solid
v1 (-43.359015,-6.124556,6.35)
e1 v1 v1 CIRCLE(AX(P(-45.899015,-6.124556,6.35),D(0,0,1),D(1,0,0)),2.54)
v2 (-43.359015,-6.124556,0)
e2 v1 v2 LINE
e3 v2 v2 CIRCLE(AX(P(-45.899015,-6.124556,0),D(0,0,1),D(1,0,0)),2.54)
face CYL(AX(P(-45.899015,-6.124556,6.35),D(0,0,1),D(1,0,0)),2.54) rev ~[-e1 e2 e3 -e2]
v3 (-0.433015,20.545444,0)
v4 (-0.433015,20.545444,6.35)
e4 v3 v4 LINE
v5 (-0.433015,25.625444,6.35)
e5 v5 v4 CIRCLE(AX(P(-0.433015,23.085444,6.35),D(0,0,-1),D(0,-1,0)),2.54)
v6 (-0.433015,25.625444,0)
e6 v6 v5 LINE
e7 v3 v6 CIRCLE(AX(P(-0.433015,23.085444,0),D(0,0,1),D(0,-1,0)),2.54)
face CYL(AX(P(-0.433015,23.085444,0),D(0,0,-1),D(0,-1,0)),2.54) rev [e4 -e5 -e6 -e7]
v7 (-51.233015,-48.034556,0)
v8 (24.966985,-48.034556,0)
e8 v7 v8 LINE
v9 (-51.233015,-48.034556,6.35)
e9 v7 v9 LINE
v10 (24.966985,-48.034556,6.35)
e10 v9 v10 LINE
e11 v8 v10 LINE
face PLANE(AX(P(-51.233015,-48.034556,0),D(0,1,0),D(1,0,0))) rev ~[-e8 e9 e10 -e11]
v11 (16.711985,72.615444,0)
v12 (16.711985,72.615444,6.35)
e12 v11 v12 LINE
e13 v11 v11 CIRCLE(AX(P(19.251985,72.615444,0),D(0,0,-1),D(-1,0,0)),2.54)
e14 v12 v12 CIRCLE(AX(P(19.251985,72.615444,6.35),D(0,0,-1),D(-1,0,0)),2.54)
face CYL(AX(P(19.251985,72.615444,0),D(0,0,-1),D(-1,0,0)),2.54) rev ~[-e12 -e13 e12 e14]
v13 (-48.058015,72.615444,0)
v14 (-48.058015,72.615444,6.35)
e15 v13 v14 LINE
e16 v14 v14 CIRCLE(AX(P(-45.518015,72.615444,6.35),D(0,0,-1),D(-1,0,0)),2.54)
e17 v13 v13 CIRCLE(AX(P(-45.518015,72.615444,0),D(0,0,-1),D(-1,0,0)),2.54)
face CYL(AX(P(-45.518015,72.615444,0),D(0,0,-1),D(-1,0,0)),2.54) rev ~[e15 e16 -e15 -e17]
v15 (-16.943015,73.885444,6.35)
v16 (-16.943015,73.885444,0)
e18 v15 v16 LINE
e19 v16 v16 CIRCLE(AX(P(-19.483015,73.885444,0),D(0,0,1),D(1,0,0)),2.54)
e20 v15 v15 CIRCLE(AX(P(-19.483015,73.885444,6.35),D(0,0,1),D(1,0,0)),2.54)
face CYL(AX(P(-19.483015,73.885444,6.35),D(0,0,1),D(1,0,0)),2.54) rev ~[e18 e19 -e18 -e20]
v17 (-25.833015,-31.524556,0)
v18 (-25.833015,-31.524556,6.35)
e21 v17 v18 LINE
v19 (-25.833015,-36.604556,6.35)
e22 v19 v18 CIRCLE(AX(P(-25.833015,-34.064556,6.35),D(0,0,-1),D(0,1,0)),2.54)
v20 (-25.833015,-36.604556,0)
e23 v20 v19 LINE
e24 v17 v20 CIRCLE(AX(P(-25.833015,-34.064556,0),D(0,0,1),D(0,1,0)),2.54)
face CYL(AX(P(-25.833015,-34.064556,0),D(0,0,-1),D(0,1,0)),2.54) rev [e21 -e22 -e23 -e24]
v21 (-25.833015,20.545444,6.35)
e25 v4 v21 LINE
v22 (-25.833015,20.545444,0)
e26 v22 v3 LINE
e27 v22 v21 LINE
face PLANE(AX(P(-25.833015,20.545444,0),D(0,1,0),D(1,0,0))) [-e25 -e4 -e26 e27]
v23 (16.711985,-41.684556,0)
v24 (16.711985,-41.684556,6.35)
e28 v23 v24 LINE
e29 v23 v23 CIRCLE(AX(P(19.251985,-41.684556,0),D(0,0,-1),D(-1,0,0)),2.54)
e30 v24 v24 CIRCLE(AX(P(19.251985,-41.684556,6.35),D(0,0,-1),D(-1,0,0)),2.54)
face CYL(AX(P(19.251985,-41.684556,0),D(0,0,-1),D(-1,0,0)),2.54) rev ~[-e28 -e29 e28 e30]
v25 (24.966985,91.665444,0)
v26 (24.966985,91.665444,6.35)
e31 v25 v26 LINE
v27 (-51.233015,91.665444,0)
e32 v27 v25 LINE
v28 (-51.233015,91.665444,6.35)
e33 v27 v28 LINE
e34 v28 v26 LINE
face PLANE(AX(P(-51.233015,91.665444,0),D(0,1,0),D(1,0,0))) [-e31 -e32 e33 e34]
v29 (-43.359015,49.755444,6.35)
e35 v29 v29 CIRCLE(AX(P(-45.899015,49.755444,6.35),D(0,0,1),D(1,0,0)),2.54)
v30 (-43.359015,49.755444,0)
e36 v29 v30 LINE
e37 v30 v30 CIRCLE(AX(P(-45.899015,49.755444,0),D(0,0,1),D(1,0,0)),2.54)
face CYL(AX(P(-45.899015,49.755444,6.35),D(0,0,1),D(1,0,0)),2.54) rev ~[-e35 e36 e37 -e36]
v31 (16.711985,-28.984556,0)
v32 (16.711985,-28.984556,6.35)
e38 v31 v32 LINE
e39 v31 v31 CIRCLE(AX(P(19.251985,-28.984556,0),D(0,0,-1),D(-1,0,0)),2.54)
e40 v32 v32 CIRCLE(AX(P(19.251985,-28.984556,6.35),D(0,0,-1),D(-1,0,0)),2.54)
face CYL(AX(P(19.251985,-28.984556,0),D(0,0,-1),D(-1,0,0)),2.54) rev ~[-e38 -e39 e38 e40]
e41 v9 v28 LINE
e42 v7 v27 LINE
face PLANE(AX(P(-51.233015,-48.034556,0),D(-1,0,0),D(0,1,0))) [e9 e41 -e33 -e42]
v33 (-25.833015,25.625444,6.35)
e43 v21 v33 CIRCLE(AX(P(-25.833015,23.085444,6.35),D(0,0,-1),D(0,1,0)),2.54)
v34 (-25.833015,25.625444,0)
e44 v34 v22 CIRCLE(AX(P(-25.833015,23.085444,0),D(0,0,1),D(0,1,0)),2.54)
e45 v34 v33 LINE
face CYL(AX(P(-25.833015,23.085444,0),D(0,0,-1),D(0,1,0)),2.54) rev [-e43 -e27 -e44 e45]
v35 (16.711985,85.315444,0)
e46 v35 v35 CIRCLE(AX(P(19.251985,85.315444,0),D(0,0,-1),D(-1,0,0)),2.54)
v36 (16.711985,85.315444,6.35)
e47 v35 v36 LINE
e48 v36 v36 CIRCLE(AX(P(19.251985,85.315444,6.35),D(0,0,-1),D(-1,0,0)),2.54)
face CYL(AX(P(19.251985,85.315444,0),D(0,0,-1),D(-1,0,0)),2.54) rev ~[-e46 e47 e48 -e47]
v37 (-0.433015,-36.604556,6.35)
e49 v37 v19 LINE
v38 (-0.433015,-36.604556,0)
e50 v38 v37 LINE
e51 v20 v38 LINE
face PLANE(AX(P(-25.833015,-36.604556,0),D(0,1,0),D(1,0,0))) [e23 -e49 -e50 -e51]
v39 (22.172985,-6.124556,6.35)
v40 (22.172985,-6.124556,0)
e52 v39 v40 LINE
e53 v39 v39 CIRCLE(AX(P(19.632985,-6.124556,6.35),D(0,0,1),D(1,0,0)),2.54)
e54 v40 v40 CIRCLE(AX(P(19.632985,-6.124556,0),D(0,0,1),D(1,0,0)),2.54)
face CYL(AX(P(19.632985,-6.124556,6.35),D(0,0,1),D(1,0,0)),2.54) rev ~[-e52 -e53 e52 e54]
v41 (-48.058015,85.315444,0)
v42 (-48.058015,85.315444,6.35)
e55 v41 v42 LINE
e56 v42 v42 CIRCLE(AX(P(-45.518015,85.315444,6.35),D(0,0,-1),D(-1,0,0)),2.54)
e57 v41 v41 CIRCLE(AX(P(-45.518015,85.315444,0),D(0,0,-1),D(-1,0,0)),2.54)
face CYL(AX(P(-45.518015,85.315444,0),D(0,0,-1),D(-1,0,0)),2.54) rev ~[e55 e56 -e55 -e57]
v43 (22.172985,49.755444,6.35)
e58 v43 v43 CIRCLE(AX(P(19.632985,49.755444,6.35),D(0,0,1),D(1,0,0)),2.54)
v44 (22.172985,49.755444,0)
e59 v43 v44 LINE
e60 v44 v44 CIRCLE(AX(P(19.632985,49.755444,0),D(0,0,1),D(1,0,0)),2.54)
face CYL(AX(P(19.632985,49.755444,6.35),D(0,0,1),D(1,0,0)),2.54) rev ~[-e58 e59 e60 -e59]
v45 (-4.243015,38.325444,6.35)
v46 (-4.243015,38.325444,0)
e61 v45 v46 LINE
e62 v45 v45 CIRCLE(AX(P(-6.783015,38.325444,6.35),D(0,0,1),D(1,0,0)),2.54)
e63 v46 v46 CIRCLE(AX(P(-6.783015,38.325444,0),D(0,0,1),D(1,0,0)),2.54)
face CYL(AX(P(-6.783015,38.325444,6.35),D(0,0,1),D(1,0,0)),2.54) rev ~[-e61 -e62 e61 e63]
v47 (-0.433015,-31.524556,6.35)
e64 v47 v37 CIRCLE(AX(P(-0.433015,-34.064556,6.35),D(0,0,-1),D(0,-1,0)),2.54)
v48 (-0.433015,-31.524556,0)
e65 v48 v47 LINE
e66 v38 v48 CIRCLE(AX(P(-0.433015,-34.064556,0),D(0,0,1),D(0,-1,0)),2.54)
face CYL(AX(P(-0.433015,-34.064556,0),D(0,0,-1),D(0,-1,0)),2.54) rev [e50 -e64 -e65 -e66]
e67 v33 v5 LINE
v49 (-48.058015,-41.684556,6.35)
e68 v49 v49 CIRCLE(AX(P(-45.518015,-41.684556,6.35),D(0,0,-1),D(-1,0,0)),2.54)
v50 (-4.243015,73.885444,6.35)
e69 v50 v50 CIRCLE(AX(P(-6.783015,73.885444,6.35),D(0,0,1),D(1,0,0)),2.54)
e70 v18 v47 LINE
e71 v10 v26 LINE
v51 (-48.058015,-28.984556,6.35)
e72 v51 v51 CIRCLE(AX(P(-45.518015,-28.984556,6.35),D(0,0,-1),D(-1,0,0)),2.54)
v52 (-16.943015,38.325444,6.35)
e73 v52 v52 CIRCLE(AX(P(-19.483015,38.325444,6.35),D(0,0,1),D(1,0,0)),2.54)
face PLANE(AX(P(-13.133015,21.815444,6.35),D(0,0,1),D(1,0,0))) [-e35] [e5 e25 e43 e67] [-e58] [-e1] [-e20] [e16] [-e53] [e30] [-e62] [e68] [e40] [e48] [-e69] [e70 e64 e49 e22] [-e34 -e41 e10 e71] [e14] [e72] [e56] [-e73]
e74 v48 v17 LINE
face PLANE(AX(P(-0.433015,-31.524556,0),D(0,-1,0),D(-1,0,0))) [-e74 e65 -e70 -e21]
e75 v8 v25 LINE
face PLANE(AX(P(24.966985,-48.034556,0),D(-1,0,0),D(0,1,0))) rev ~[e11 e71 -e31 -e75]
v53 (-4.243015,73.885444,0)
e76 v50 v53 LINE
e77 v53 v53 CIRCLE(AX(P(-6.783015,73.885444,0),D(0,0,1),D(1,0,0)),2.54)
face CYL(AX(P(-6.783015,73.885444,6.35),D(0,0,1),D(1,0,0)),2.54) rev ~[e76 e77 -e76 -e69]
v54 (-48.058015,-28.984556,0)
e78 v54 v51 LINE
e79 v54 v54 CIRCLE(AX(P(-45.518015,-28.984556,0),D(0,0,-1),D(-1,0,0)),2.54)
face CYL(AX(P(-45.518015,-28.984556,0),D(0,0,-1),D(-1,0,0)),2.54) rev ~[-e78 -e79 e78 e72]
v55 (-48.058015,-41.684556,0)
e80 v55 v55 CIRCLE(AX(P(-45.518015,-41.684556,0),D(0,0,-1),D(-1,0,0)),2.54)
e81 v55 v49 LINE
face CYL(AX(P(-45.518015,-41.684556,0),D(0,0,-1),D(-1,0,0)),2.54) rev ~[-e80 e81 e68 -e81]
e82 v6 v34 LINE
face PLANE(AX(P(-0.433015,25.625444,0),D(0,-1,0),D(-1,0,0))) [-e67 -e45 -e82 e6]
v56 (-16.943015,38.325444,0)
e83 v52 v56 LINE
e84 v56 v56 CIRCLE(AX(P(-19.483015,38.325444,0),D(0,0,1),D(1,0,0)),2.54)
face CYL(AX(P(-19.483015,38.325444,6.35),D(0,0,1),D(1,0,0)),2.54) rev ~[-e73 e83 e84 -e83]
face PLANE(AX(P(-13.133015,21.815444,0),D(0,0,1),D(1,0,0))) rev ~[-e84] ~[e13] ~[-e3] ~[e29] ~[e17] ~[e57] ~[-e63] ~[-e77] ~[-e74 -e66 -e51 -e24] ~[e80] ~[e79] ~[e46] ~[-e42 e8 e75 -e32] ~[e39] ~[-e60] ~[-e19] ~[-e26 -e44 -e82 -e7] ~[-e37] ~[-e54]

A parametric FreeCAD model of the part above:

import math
import FreeCAD as App
import Part
import Sketcher

V = App.Vector
Q = App.Units.Quantity

doc = App.newDocument("Part")
body = doc.addObject("PartDesign::Body", "Body")

# Sketch on XY plane
sketch1 = body.newObject("Sketcher::SketchObject", "Sketch")
sketch1.AttachmentSupport = (doc.getObject("XY_Plane"), [""])
sketch1.MapMode = "FlatFace"
sketch1.addGeometry([
    Part.LineSegment(V(-51, 92, 0), V(-51, -48, 0)),
    Part.LineSegment(V(-51, -48, 0), V(25, -48, 0)),
    Part.LineSegment(V(25, -48, 0), V(25, 92, 0)),
    Part.LineSegment(V(25, 92, 0), V(-51, 92, 0)),
], False)
sketch1.addConstraint([
    Sketcher.Constraint("Coincident", 0, 2, 1, 1),
    Sketcher.Constraint("Coincident", 1, 2, 2, 1),
    Sketcher.Constraint("Coincident", 2, 2, 3, 1),
    Sketcher.Constraint("Coincident", 3, 2, 0, 1),
    Sketcher.Constraint("Vertical", 0),
    Sketcher.Constraint("Horizontal", 1),
    Sketcher.Constraint("Vertical", 2),
    Sketcher.Constraint("Horizontal", 3),
    Sketcher.Constraint("DistanceX", 1, 1, 1, 2, Q("3 in")),
    Sketcher.Constraint("DistanceY", 0, 2, 0, 1, Q("5.5 in")),
    Sketcher.Constraint("DistanceX", 0, 2, -1, 1, 51.233015),
    Sketcher.Constraint("DistanceY", 0, 2, -1, 1, 48.034556),
])
pad1 = body.newObject("PartDesign::Pad", "Pad")
pad1.Profile = sketch1
pad1.Length = Q("0.25 in")

# Sketch on XY plane
sketch2 = body.newObject("Sketcher::SketchObject", "Sketch001")
sketch2.AttachmentSupport = (doc.getObject("XY_Plane"), [""])
sketch2.MapMode = "FlatFace"
sketch2.addGeometry([
    Part.Circle(V(-45.5, 85.3, 0), V(0, 0, 1), 2.5),  # 0
    Part.Circle(V(-45.5, 72.6, 0), V(0, 0, 1), 2.5),  # 1
    Part.Circle(V(-45.5, -29, 0), V(0, 0, 1), 2.5),  # 2
    Part.Circle(V(-45.5, -41.7, 0), V(0, 0, 1), 2.5),  # 3
    Part.Circle(V(19.3, -41.7, 0), V(0, 0, 1), 2.5),  # 4
    Part.Circle(V(19.3, -29, 0), V(0, 0, 1), 2.5),  # 5
    Part.Circle(V(19.3, 85.3, 0), V(0, 0, 1), 2.5),  # 6
    Part.Circle(V(19.3, 72.6, 0), V(0, 0, 1), 2.5),  # 7
], False)
sketch2.addConstraint([
    Sketcher.Constraint("Equal", 0, 1),
    Sketcher.Constraint("Equal", 1, 2),
    Sketcher.Constraint("Equal", 2, 3),
    Sketcher.Constraint("Equal", 3, 4),
    Sketcher.Constraint("Equal", 4, 5),
    Sketcher.Constraint("Equal", 5, 6),
    Sketcher.Constraint("Equal", 6, 7),
    Sketcher.Constraint("Horizontal", 3, 3, 4, 3),
    Sketcher.Constraint("Horizontal", 2, 3, 5, 3),
    Sketcher.Constraint("Horizontal", 0, 3, 6, 3),
    Sketcher.Constraint("Horizontal", 1, 3, 7, 3),
    Sketcher.Constraint("Vertical", 0, 3, 1, 3),
    Sketcher.Constraint("Vertical", 1, 3, 2, 3),
    Sketcher.Constraint("Vertical", 2, 3, 3, 3),
    Sketcher.Constraint("Vertical", 4, 3, 5, 3),
    Sketcher.Constraint("Vertical", 5, 3, 6, 3),
    Sketcher.Constraint("Vertical", 6, 3, 7, 3),
    Sketcher.Constraint("Diameter", 0, Q("0.2 in")),
    Sketcher.Constraint("DistanceY", 2, 3, 1, 3, Q("4 in")),
    Sketcher.Constraint("DistanceY", 3, 3, 0, 3, Q("5 in")),
    Sketcher.Constraint("DistanceY", 1, 3, 0, 3, Q("0.5 in")),
    Sketcher.Constraint("DistanceX", 3, 3, 4, 3, Q("2.55 in")),
    Sketcher.Constraint("DistanceX", 0, 3, -1, 1, 45.518015),
    Sketcher.Constraint("DistanceY", -1, 1, 0, 3, 85.315444),
])
pocket1 = body.newObject("PartDesign::Pocket", "Pocket")
pocket1.Profile = sketch2
pocket1.Length = Q("0.6 in")
pocket1.Reversed = True

# Sketch on XY plane
sketch3 = body.newObject("Sketcher::SketchObject", "Sketch002")
sketch3.AttachmentSupport = (doc.getObject("XY_Plane"), [""])
sketch3.MapMode = "FlatFace"
sketch3.AttachmentOffset = App.Placement(V(0, 0, 0.25 * 25.4), App.Rotation())
sketch3.addGeometry([
    Part.Circle(V(-19.5, 38.3, 0), V(0, 0, 1), 2.5),
    Part.Circle(V(-6.8, 38.3, 0), V(0, 0, 1), 2.5),
    Part.Circle(V(-19.5, 73.9, 0), V(0, 0, 1), 2.5),
    Part.Circle(V(-6.8, 73.9, 0), V(0, 0, 1), 2.5),
], False)
sketch3.addConstraint([
    Sketcher.Constraint("Equal", 0, 1),
    Sketcher.Constraint("Equal", 1, 2),
    Sketcher.Constraint("Equal", 2, 3),
    Sketcher.Constraint("Horizontal", 0, 3, 1, 3),
    Sketcher.Constraint("Horizontal", 2, 3, 3, 3),
    Sketcher.Constraint("Vertical", 0, 3, 2, 3),
    Sketcher.Constraint("Vertical", 1, 3, 3, 3),
    Sketcher.Constraint("Diameter", 0, Q("0.2 in")),
    Sketcher.Constraint("DistanceX", 0, 3, 1, 3, Q("0.5 in")),
    Sketcher.Constraint("DistanceY", 0, 3, 2, 3, Q("1.4 in")),
    Sketcher.Constraint("DistanceX", 0, 3, -1, 1, 19.483015),
    Sketcher.Constraint("DistanceY", -1, 1, 0, 3, 38.325444),
])
pocket2 = body.newObject("PartDesign::Pocket", "Pocket001")
pocket2.Profile = sketch3
pocket2.Length = Q("0.6 in")

# Sketch on XY plane
sketch4 = body.newObject("Sketcher::SketchObject", "Sketch003")
sketch4.AttachmentSupport = (doc.getObject("XY_Plane"), [""])
sketch4.MapMode = "FlatFace"
sketch4.AttachmentOffset = App.Placement(V(0, 0, 0.25 * 25.4), App.Rotation())
sketch4.addGeometry([
    Part.Circle(V(-45.9, 49.8, 0), V(0, 0, 1), 2.5),
    Part.Circle(V(-45.9, -6.1, 0), V(0, 0, 1), 2.5),
    Part.Circle(V(19.6, -6.1, 0), V(0, 0, 1), 2.5),
    Part.Circle(V(19.6, 49.8, 0), V(0, 0, 1), 2.5),
], False)
sketch4.addConstraint([
    Sketcher.Constraint("Equal", 0, 1),
    Sketcher.Constraint("Equal", 1, 2),
    Sketcher.Constraint("Equal", 2, 3),
    Sketcher.Constraint("Horizontal", 1, 3, 2, 3),
    Sketcher.Constraint("Horizontal", 0, 3, 3, 3),
    Sketcher.Constraint("Vertical", 0, 3, 1, 3),
    Sketcher.Constraint("Vertical", 2, 3, 3, 3),
    Sketcher.Constraint("Diameter", 0, Q("0.2 in")),
    Sketcher.Constraint("DistanceY", 1, 3, 0, 3, Q("2.2 in")),
    Sketcher.Constraint("DistanceX", 1, 3, 2, 3, Q("2.58 in")),
    Sketcher.Constraint("DistanceX", 0, 3, -1, 1, 45.899015),
    Sketcher.Constraint("DistanceY", -1, 1, 0, 3, 49.755444),
])
pocket3 = body.newObject("PartDesign::Pocket", "Pocket002")
pocket3.Profile = sketch4
pocket3.Length = Q("0.3 in")

# Sketch on XY plane
sketch5 = body.newObject("Sketcher::SketchObject", "Sketch004")
sketch5.AttachmentSupport = (doc.getObject("XY_Plane"), [""])
sketch5.MapMode = "FlatFace"
sketch5.addGeometry([
    Part.LineSegment(V(-25.8, 25.6, 0), V(-0.4, 25.6, 0)),  # 0
    Part.ArcOfCircle(Part.Circle(V(-0.4, 23.1, 0), V(0, 0, 1), 2.5), math.radians(-90), math.radians(90)),  # 1
    Part.LineSegment(V(-0.4, 20.5, 0), V(-25.8, 20.5, 0)),  # 2
    Part.ArcOfCircle(Part.Circle(V(-25.8, 23.1, 0), V(0, 0, 1), 2.5), math.radians(90), math.radians(270)),  # 3
    Part.LineSegment(V(-25.8, -31.5, 0), V(-0.4, -31.5, 0)),  # 4
    Part.ArcOfCircle(Part.Circle(V(-0.4, -34.1, 0), V(0, 0, 1), 2.5), math.radians(-90), math.radians(90)),  # 5
    Part.LineSegment(V(-0.4, -36.6, 0), V(-25.8, -36.6, 0)),  # 6
    Part.ArcOfCircle(Part.Circle(V(-25.8, -34.1, 0), V(0, 0, 1), 2.5), math.radians(90), math.radians(270)),  # 7
], False)
sketch5.addConstraint([
    Sketcher.Constraint("Tangent", 0, 2, 1, 2),
    Sketcher.Constraint("Tangent", 1, 1, 2, 1),
    Sketcher.Constraint("Tangent", 2, 2, 3, 2),
    Sketcher.Constraint("Tangent", 3, 1, 0, 1),
    Sketcher.Constraint("Tangent", 4, 2, 5, 2),
    Sketcher.Constraint("Tangent", 5, 1, 6, 1),
    Sketcher.Constraint("Tangent", 6, 2, 7, 2),
    Sketcher.Constraint("Tangent", 7, 1, 4, 1),
    Sketcher.Constraint("Horizontal", 0),
    Sketcher.Constraint("Horizontal", 2),
    Sketcher.Constraint("Horizontal", 4),
    Sketcher.Constraint("Horizontal", 6),
    Sketcher.Constraint("Equal", 3, 5),
    Sketcher.Constraint("Vertical", 1, 3, 5, 3),
    Sketcher.Constraint("Vertical", 3, 3, 7, 3),
    Sketcher.Constraint("Radius", 1, Q("0.1 in")),
    Sketcher.Constraint("DistanceX", 0, 1, 0, 2, Q("1 in")),
    Sketcher.Constraint("DistanceY", 5, 3, 1, 3, Q("2.25 in")),
    Sketcher.Constraint("DistanceX", 1, 3, -1, 1, 0.433015),
    Sketcher.Constraint("DistanceY", -1, 1, 1, 3, 23.085444),
])
pocket4 = body.newObject("PartDesign::Pocket", "Pocket003")
pocket4.Profile = sketch5
pocket4.Length = Q("0.3 in")
pocket4.Reversed = True

doc.recompute()
